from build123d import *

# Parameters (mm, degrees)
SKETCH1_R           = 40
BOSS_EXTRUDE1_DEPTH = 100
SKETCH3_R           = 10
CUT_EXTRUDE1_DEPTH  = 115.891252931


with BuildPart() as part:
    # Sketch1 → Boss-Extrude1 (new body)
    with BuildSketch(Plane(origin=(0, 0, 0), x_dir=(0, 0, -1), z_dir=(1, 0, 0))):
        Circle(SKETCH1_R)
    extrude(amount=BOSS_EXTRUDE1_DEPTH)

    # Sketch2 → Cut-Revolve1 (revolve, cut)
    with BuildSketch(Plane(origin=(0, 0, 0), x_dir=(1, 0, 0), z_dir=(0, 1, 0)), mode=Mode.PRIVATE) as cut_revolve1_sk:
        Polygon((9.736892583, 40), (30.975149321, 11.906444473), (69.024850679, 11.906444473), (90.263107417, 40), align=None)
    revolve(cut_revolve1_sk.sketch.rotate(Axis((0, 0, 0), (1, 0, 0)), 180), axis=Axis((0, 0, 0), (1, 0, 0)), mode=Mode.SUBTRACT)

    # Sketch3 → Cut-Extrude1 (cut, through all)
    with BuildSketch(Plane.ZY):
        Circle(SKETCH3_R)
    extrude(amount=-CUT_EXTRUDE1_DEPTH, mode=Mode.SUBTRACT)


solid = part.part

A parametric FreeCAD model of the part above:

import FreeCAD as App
import Part
import Sketcher

V = App.Vector
Q = App.Units.Quantity

doc = App.newDocument("Part")
params = doc.addObject("Spreadsheet::Sheet", "Params")
for row, (alias, value) in enumerate([
    ("sketch1_diameter", "80 mm"),
    ("pad1_length", "100 mm"),
    ("groove_angle", "360 deg"),
    ("sketch3_diameter", "20 mm"),
], start=1):
    params.set(f"A{row}", alias)
    params.set(f"B{row}", "=" + value)
    params.setAlias(f"B{row}", alias)

body = doc.addObject("PartDesign::Body", "Body")

# Sketch on YZ plane
sketch1 = body.newObject("Sketcher::SketchObject", "Sketch")
sketch1.AttachmentSupport = (doc.getObject("YZ_Plane"), [""])
sketch1.MapMode = "FlatFace"
sketch1.addGeometry(Part.Circle(V(0, 0, 0), V(0, 0, 1), 40), False)
sketch1.addConstraint([
    Sketcher.Constraint("Coincident", 0, 3, -1, 1),
    Sketcher.Constraint("Diameter", 0, Q("80 mm")),
])
sketch1.setExpression("Constraints[1]", "Params.sketch1_diameter")
pad1 = body.newObject("PartDesign::Pad", "Pad")
pad1.Profile = sketch1
pad1.setExpression("Length", "Params.pad1_length")

# Sketch on XZ plane
sketch2 = body.newObject("Sketcher::SketchObject", "Sketch001")
sketch2.AttachmentSupport = (doc.getObject("XZ_Plane"), [""])
sketch2.MapMode = "FlatFace"
sketch2.addGeometry([
    Part.LineSegment(V(9.736893, -40, 0), V(30.975149, -11.906444, 0)),
    Part.LineSegment(V(30.975149, -11.906444, 0), V(69.024851, -11.906444, 0)),
    Part.LineSegment(V(69.024851, -11.906444, 0), V(90.263107, -40, 0)),
    Part.LineSegment(V(90.263107, -40, 0), V(9.736893, -40, 0)),
], False)
sketch2.addConstraint([
    Sketcher.Constraint("Coincident", 0, 2, 1, 1),
    Sketcher.Constraint("Coincident", 1, 2, 2, 1),
    Sketcher.Constraint("Coincident", 2, 2, 3, 1),
    Sketcher.Constraint("Coincident", 3, 2, 0, 1),
    Sketcher.Constraint("Horizontal", 1),
    Sketcher.Constraint("Horizontal", 3),
    Sketcher.Constraint("Equal", 0, 2),
    Sketcher.Constraint("DistanceY", 2, 2, -1, 1, Q("40 mm")),
    Sketcher.Constraint("DistanceX", 1, 1, 1, 2, Q("38.049701 mm")),
    Sketcher.Constraint("DistanceX", 3, 2, 3, 1, Q("80.526215 mm")),
    Sketcher.Constraint("DistanceX", -1, 1, 0, 2, Q("30.975149 mm")),
    Sketcher.Constraint("Distance", 0, Q("35.218055 mm")),
])
groove = body.newObject("PartDesign::Groove", "Groove")
groove.Profile = sketch2
groove.ReferenceAxis = (sketch2, ["H_Axis"])
groove.setExpression("Angle", "Params.groove_angle")

# Sketch on YZ plane
sketch3 = body.newObject("Sketcher::SketchObject", "Sketch002")
sketch3.AttachmentSupport = (doc.getObject("YZ_Plane"), [""])
sketch3.MapMode = "FlatFace"
sketch3.addGeometry(Part.Circle(V(0, 0, 0), V(0, 0, 1), 10), False)
sketch3.addConstraint([
    Sketcher.Constraint("Coincident", 0, 3, -1, 1),
    Sketcher.Constraint("Diameter", 0, Q("20 mm")),
])
sketch3.setExpression("Constraints[1]", "Params.sketch3_diameter")
pocket1 = body.newObject("PartDesign::Pocket", "Pocket")
pocket1.Profile = sketch3
pocket1.Type = "ThroughAll"
pocket1.Reversed = True

doc.recompute()
